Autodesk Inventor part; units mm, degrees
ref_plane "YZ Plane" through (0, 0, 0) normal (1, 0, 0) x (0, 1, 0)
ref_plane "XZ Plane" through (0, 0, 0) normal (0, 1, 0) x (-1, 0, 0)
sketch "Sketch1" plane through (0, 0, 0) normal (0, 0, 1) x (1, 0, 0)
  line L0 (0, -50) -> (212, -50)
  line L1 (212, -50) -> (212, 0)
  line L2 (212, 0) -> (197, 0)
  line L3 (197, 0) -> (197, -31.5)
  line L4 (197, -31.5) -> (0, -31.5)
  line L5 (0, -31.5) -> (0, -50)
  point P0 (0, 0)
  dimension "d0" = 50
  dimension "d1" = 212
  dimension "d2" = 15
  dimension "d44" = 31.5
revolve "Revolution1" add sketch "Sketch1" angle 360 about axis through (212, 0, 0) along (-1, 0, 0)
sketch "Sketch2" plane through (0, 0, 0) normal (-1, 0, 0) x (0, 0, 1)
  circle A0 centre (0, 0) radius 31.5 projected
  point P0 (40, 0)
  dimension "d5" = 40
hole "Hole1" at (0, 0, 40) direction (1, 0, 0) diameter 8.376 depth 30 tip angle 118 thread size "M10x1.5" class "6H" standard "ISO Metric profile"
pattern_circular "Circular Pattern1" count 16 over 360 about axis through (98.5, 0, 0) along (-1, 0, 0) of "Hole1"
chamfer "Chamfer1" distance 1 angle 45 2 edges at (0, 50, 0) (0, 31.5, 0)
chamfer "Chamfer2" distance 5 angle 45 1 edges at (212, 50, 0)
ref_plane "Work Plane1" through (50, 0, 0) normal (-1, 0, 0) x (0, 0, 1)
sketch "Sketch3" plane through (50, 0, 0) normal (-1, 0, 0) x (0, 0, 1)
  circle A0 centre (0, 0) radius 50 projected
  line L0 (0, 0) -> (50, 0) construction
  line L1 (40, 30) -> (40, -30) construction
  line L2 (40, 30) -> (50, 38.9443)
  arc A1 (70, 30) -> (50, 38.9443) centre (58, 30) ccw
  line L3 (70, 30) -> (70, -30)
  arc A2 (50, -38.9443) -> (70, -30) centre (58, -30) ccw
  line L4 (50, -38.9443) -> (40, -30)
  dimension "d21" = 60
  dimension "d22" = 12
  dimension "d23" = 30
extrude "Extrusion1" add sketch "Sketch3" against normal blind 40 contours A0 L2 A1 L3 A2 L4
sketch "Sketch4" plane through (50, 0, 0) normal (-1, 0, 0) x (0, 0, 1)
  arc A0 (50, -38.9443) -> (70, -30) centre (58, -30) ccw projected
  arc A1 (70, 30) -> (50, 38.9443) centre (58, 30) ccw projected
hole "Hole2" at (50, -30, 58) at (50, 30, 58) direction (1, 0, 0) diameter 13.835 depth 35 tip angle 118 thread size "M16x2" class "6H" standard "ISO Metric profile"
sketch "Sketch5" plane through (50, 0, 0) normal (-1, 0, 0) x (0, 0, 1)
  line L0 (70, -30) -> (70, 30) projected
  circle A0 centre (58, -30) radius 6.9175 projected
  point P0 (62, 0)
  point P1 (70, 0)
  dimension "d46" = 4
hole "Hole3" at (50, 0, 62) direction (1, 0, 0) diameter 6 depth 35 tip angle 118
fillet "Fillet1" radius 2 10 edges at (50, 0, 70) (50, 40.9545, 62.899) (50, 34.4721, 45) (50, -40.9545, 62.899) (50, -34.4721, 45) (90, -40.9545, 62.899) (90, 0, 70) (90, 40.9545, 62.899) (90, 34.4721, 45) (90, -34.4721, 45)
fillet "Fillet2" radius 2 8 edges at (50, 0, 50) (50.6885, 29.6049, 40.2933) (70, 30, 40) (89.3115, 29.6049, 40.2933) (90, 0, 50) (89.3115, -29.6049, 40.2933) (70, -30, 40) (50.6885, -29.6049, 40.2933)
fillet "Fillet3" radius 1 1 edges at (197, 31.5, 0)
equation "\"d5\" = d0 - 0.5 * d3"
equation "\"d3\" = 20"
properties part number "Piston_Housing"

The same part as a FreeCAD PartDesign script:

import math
import FreeCAD as App
import Part
import Sketcher


def edges_at(feature, points):
    """Names of the edges that pass closest to the given points."""
    edges = feature.Shape.Edges
    near = lambda p: min(range(len(edges)), key=lambda i: edges[i].distToShape(Part.Vertex(*p))[0])
    return sorted({f"Edge{near(p) + 1}" for p in points})


def add_polygon(sketch, points):
    """Adds a closed chain of lines whose ends are joined by coincident constraints."""
    first, n = sketch.GeometryCount, len(points)
    for a, b in zip(points, points[1:] + points[:1]):
        sketch.addGeometry(Part.LineSegment(App.Vector(*a, 0), App.Vector(*b, 0)), False)
    for i in range(n):
        sketch.addConstraint(Sketcher.Constraint("Coincident", first + i, 2, first + (i + 1) % n, 1))

doc = App.newDocument("Part")
params = doc.addObject("Spreadsheet::Sheet", "Params")
for row, (alias, value) in enumerate([
    ("sketch1_width", "212 mm"),
    ("sketch1_width2", "15 mm"),
    ("sketch1_height", "50 mm"),
    ("sketch1_height2", "31.5 mm"),
    ("revolution_angle", "360 deg"),
    ("hole_diameter", "8.376 mm"),
    ("hole_depth", "30 mm"),
    ("chamfer_size", "1 mm"),
    ("chamfer2_size", "5 mm"),
    ("sketch3_radius", "12 mm"),
    ("sketch3_width", "60 mm"),
    ("sketch3_radius2", "50 mm"),
    ("pad1_length", "40 mm"),
    ("hole2_diameter", "13.835 mm"),
    ("hole2_depth", "35 mm"),
    ("sketch5_diameter", "6 mm"),
    ("hole3_diameter", "6 mm"),
    ("hole3_depth", "35 mm"),
    ("fillet_radius", "2 mm"),
    ("fillet2_radius", "2 mm"),
    ("fillet3_radius", "1 mm"),
], start=1):
    params.set(f"A{row}", alias)
    params.set(f"B{row}", "=" + value)
    params.setAlias(f"B{row}", alias)

body = doc.addObject("PartDesign::Body", "Body")

sketch1 = body.newObject("Sketcher::SketchObject", "Sketch")
sketch1.AttachmentSupport = (doc.getObject("XY_Plane"), [""])
sketch1.MapMode = "FlatFace"
add_polygon(sketch1, [(0, -31.5), (0, -50), (212, -50), (212, 0), (197, 0), (197, -31.5)])
sketch1.addConstraint(Sketcher.Constraint("Vertical", 0))
sketch1.addConstraint(Sketcher.Constraint("Horizontal", 1))
sketch1.addConstraint(Sketcher.Constraint("Vertical", 2))
sketch1.addConstraint(Sketcher.Constraint("Horizontal", 3))
sketch1.addConstraint(Sketcher.Constraint("Vertical", 4))
sketch1.addConstraint(Sketcher.Constraint("Horizontal", 5))
sketch1.addConstraint(Sketcher.Constraint("PointOnObject", 0, 2, -2))
sketch1.addConstraint(Sketcher.Constraint("PointOnObject", 2, 2, -1))
sketch1.addConstraint(Sketcher.Constraint("DistanceX", 1, 1, 1, 2, 212.0))
sketch1.addConstraint(Sketcher.Constraint("DistanceX", 3, 2, 3, 1, 15.0))
sketch1.addConstraint(Sketcher.Constraint("DistanceY", 2, 1, 2, 2, 50.0))
sketch1.addConstraint(Sketcher.Constraint("DistanceY", 4, 2, 4, 1, 31.5))
sketch1.setExpression("Constraints[14]", "Params.sketch1_width")
sketch1.setExpression("Constraints[15]", "Params.sketch1_width2")
sketch1.setExpression("Constraints[16]", "Params.sketch1_height")
sketch1.setExpression("Constraints[17]", "Params.sketch1_height2")
revolution = body.newObject("PartDesign::Revolution", "Revolution")
revolution.Profile = sketch1
revolution.ReferenceAxis = (sketch1, ["H_Axis"])
revolution.setExpression("Angle", "Params.revolution_angle")

sketch2 = body.newObject("Sketcher::SketchObject", "Sketch001")
sketch2.AttachmentSupport = (doc.getObject("YZ_Plane"), [""])
sketch2.MapMode = "FlatFace"
sketch2.addGeometry(Part.Circle(App.Vector(0, 40, 0), App.Vector(0, 0, 1), 4.188), False)
sketch2.addConstraint(Sketcher.Constraint("PointOnObject", 0, 3, -2))
sketch2.addConstraint(Sketcher.Constraint("Diameter", 0, 8.376))
sketch2.addConstraint(Sketcher.Constraint("DistanceY", -1, 1, 0, 3, 40.0))
doc.recompute()
hole = body.newObject("PartDesign::Hole", "Hole")
hole.Profile = sketch2
hole.ThreadType = "None"
hole.setExpression("Diameter", "Params.hole_diameter")
hole.DepthType = "Dimension"
hole.setExpression("Depth", "Params.hole_depth")
hole.DrillPoint = "Angled"
hole.DrillPointAngle = 118
hole.Reversed = True
doc.recompute()

polarpattern = body.newObject("PartDesign::PolarPattern", "PolarPattern")
polarpattern.Originals = [hole]
polarpattern.Axis = (doc.getObject("X_Axis"), [""])
polarpattern.Angle = 360
polarpattern.Occurrences = 16
body.Tip = polarpattern
doc.recompute()

chamfer = body.newObject("PartDesign::Chamfer", "Chamfer")
chamfer.Base = (polarpattern, edges_at(polarpattern, [(0, 50, 0), (0, 31.5, 0)]))
chamfer.setExpression("Size", "Params.chamfer_size")
doc.recompute()

chamfer2 = body.newObject("PartDesign::Chamfer", "Chamfer001")
chamfer2.Base = (chamfer, edges_at(chamfer, [(212, 50, 0)]))
chamfer2.setExpression("Size", "Params.chamfer2_size")

sketch3 = body.newObject("Sketcher::SketchObject", "Sketch002")
sketch3.AttachmentSupport = (doc.getObject("YZ_Plane"), [""])
sketch3.MapMode = "FlatFace"
sketch3.AttachmentOffset = App.Placement(App.Vector(0, 0, 50), App.Rotation())
sketch3.addGeometry(Part.ArcOfCircle(Part.Circle(App.Vector(0, 0, 0), App.Vector(0, 0, 1), 50), math.radians(53.130102), math.radians(126.869898)), False)
sketch3.addGeometry(Part.LineSegment(App.Vector(-30, 40, 0), App.Vector(-38.9443, 50, 0)), False)
sketch3.addGeometry(Part.ArcOfCircle(Part.Circle(App.Vector(-30, 58, 0), App.Vector(0, 0, 1), 12.000021), math.radians(90), math.radians(221.810225)), False)
sketch3.addGeometry(Part.LineSegment(App.Vector(-30, 70, 0), App.Vector(30, 70, 0)), False)
sketch3.addGeometry(Part.ArcOfCircle(Part.Circle(App.Vector(30, 58, 0), App.Vector(0, 0, 1), 12), math.radians(-41.810225), math.radians(90)), False)
sketch3.addGeometry(Part.LineSegment(App.Vector(38.9443, 50, 0), App.Vector(30, 40, 0)), False)
sketch3.addConstraint(Sketcher.Constraint("Coincident", 0, 2, 1, 1))
sketch3.addConstraint(Sketcher.Constraint("Tangent", 1, 2, 2, 2))
sketch3.addConstraint(Sketcher.Constraint("Tangent", 2, 1, 3, 1))
sketch3.addConstraint(Sketcher.Constraint("Tangent", 3, 2, 4, 2))
sketch3.addConstraint(Sketcher.Constraint("Tangent", 4, 1, 5, 1))
sketch3.addConstraint(Sketcher.Constraint("Coincident", 5, 2, 0, 1))
sketch3.addConstraint(Sketcher.Constraint("Horizontal", 3))
sketch3.addConstraint(Sketcher.Constraint("Coincident", 0, 3, -1, 1))
sketch3.addConstraint(Sketcher.Constraint("Equal", 2, 4))
sketch3.addConstraint(Sketcher.Constraint("Symmetric", 1, 2, 4, 1, -2))
sketch3.addConstraint(Sketcher.Constraint("Vertical", 2, 3, 0, 2))
sketch3.addConstraint(Sketcher.Constraint("Radius", 2, 12.0))
sketch3.addConstraint(Sketcher.Constraint("DistanceX", 3, 1, 3, 2, 60.0))
sketch3.addConstraint(Sketcher.Constraint("Radius", 0, 50.0))
sketch3.addConstraint(Sketcher.Constraint("DistanceY", 0, 2, 2, 1, 30.0))
sketch3.setExpression("Constraints[11]", "Params.sketch3_radius")
sketch3.setExpression("Constraints[12]", "Params.sketch3_width")
sketch3.setExpression("Constraints[13]", "Params.sketch3_radius2")
pad1 = body.newObject("PartDesign::Pad", "Pad")
pad1.Profile = sketch3
pad1.setExpression("Length", "Params.pad1_length")

sketch4 = body.newObject("Sketcher::SketchObject", "Sketch003")
sketch4.AttachmentSupport = (doc.getObject("YZ_Plane"), [""])
sketch4.MapMode = "FlatFace"
sketch4.AttachmentOffset = App.Placement(App.Vector(0, 0, 50), App.Rotation())
sketch4.addGeometry(Part.Circle(App.Vector(-30, 58, 0), App.Vector(0, 0, 1), 6.9175), False)
sketch4.addGeometry(Part.Circle(App.Vector(30, 58, 0), App.Vector(0, 0, 1), 6.9175), False)
sketch4.addConstraint(Sketcher.Constraint("Equal", 0, 1))
sketch4.addConstraint(Sketcher.Constraint("Symmetric", 0, 3, 1, 3, -2))
sketch4.addConstraint(Sketcher.Constraint("Diameter", 0, 13.835))
sketch4.addConstraint(Sketcher.Constraint("DistanceX", 0, 3, -1, 1, 30.0))
sketch4.addConstraint(Sketcher.Constraint("DistanceY", -1, 1, 0, 3, 58.0))
doc.recompute()
hole2 = body.newObject("PartDesign::Hole", "Hole001")
hole2.Profile = sketch4
hole2.ThreadType = "None"
hole2.setExpression("Diameter", "Params.hole2_diameter")
hole2.DepthType = "Dimension"
hole2.setExpression("Depth", "Params.hole2_depth")
hole2.DrillPoint = "Angled"
hole2.DrillPointAngle = 118
hole2.Reversed = True

sketch5 = body.newObject("Sketcher::SketchObject", "Sketch004")
sketch5.AttachmentSupport = (doc.getObject("YZ_Plane"), [""])
sketch5.MapMode = "FlatFace"
sketch5.AttachmentOffset = App.Placement(App.Vector(0, 0, 50), App.Rotation())
sketch5.addGeometry(Part.Circle(App.Vector(0, 62, 0), App.Vector(0, 0, 1), 3), False)
sketch5.addConstraint(Sketcher.Constraint("PointOnObject", 0, 3, -2))
sketch5.addConstraint(Sketcher.Constraint("Diameter", 0, 6.0))
sketch5.addConstraint(Sketcher.Constraint("DistanceY", -1, 1, 0, 3, 62.0))
sketch5.setExpression("Constraints[1]", "Params.sketch5_diameter")
doc.recompute()
hole3 = body.newObject("PartDesign::Hole", "Hole002")
hole3.Profile = sketch5
hole3.ThreadType = "None"
hole3.setExpression("Diameter", "Params.hole3_diameter")
hole3.DepthType = "Dimension"
hole3.setExpression("Depth", "Params.hole3_depth")
hole3.DrillPoint = "Angled"
hole3.DrillPointAngle = 118
hole3.Reversed = True
doc.recompute()

fillet = body.newObject("PartDesign::Fillet", "Fillet")
fillet.Base = (hole3, edges_at(hole3, [
    (50, 0, 70),
    (50, 40.955, 62.899),
    (50, 34.472, 45),
    (50, -40.955, 62.899),
    (50, -34.472, 45),
    (90, -40.955, 62.899),
    (90, 0, 70),
    (90, 40.955, 62.899),
    (90, 34.472, 45),
    (90, -34.472, 45),
]))
fillet.setExpression("Radius", "Params.fillet_radius")
doc.recompute()

fillet2 = body.newObject("PartDesign::Fillet", "Fillet001")
fillet2.Base = (fillet, edges_at(fillet, [
    (50, 0, 50),
    (50.688, 29.605, 40.293),
    (70, 30, 40),
    (89.311, 29.605, 40.293),
    (90, 0, 50),
    (89.311, -29.605, 40.293),
    (70, -30, 40),
    (50.688, -29.605, 40.293),
]))
fillet2.setExpression("Radius", "Params.fillet2_radius")
doc.recompute()

fillet3 = body.newObject("PartDesign::Fillet", "Fillet002")
fillet3.Base = (fillet2, edges_at(fillet2, [(197, 31.5, 0)]))
fillet3.setExpression("Radius", "Params.fillet3_radius")

doc.recompute()
